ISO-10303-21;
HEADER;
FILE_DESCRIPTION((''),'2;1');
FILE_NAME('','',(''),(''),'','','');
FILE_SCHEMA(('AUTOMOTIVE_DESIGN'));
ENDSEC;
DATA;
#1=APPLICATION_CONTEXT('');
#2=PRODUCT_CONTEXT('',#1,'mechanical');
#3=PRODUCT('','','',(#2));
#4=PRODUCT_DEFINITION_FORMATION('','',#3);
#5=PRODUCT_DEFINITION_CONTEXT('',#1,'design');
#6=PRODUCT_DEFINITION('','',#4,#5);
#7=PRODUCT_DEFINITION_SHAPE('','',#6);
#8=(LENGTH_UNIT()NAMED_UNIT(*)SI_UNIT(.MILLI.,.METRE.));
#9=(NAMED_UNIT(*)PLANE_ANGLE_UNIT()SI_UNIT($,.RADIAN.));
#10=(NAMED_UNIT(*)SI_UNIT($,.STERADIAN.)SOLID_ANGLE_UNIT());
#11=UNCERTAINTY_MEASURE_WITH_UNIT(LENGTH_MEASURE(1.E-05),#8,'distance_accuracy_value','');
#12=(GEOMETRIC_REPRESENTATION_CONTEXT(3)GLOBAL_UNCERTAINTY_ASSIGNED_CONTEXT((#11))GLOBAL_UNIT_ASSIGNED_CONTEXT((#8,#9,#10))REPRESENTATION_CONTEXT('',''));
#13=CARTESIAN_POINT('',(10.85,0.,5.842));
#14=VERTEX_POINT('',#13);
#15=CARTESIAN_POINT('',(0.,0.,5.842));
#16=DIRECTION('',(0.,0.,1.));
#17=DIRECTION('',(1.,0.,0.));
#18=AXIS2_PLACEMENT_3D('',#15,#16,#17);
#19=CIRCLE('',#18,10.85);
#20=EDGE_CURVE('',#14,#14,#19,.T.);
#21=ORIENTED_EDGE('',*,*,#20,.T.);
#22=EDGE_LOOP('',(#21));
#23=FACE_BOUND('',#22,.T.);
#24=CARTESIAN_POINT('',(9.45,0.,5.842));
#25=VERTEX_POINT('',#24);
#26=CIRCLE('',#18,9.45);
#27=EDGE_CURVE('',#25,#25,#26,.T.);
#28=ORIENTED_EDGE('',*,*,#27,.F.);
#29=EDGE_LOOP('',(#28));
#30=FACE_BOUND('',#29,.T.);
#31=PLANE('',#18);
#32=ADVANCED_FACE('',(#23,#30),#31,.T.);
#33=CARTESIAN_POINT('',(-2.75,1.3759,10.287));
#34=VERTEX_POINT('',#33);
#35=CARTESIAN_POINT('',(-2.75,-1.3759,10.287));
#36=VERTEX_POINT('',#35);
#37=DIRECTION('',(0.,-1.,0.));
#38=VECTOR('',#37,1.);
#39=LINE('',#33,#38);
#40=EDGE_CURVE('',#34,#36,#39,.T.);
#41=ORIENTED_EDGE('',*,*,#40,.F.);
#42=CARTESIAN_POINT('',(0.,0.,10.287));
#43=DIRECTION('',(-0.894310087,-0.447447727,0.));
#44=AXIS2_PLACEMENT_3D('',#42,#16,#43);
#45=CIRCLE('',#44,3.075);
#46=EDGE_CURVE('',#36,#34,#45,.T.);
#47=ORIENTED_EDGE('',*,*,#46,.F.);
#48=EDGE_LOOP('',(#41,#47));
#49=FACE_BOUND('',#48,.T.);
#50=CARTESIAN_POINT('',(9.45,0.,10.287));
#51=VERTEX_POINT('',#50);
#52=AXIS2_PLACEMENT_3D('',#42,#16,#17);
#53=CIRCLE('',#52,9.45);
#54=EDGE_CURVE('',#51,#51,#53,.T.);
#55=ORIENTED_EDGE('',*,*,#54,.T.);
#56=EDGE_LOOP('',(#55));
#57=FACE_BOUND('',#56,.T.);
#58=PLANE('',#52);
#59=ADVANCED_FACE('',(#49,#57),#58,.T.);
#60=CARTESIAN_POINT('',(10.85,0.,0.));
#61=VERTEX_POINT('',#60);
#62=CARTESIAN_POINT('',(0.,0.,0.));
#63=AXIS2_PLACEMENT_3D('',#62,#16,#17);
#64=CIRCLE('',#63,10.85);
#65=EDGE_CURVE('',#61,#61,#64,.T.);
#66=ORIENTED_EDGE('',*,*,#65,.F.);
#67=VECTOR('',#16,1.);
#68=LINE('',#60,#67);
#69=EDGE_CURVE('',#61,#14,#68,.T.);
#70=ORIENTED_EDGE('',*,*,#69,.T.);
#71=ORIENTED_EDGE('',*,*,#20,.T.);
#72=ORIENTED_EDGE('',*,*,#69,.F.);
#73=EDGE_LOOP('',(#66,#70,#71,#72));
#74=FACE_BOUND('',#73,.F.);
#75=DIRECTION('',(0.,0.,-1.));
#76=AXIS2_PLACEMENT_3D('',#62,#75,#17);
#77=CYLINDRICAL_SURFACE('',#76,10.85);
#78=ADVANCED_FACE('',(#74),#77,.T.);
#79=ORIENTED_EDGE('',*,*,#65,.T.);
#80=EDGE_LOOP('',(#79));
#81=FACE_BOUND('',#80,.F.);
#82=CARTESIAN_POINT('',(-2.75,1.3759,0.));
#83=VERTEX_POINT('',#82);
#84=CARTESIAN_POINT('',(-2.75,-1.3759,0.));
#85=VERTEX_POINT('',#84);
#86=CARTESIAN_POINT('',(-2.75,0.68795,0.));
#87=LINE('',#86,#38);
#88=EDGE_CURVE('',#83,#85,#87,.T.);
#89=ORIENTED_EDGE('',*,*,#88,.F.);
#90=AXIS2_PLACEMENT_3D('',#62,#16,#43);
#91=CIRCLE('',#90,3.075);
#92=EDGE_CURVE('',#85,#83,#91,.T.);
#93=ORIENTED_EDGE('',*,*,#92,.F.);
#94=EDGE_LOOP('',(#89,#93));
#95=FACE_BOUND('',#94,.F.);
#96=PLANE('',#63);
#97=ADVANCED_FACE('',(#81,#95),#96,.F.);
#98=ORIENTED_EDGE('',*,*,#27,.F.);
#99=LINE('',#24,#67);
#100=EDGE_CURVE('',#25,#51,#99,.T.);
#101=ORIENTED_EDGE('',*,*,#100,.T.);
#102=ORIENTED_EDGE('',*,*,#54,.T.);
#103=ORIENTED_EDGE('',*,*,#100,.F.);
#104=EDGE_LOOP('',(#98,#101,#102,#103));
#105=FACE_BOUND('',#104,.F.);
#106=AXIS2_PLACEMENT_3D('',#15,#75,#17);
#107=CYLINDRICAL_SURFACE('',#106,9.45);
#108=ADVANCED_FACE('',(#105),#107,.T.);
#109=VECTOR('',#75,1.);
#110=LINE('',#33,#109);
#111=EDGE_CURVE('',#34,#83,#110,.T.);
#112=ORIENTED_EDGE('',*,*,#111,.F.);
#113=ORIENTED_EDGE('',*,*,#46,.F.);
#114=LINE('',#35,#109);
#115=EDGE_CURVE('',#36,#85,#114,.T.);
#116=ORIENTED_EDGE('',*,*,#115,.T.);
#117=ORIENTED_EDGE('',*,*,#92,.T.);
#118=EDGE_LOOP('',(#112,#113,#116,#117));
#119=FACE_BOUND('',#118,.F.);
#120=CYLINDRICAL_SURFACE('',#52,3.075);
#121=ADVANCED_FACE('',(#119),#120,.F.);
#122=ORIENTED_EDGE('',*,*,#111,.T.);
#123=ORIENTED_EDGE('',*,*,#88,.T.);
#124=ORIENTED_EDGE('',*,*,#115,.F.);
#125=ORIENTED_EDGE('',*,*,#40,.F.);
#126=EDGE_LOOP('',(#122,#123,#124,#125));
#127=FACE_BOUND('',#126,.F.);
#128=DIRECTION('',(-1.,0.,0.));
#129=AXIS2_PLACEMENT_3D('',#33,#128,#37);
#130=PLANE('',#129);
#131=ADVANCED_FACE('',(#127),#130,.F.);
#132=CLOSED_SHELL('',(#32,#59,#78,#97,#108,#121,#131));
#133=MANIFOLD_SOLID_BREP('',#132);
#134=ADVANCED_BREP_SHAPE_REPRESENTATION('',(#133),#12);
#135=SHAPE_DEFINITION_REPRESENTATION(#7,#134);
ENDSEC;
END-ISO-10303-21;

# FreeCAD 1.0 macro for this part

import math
import FreeCAD as App
import Part
import Sketcher
Q = App.Units.Quantity

doc = App.newDocument("Part")
body = doc.addObject("PartDesign::Body", "Body")

# Sketch on XY plane
sketch1 = doc.addObject("Sketcher::SketchObject", "Sketch")
body.addObject(sketch1)
sketch1.AttachmentSupport = (doc.XY_Plane, [""])
sketch1.MapMode = "FlatFace"
sketch1.addGeometry(Part.Circle(App.Vector(0, 0, 0), App.Vector(0, 0, 1), 11), False)
sketch1.addConstraint(Sketcher.Constraint("Coincident", 0, 3, -1, 1))
sketch1.addConstraint(Sketcher.Constraint("Diameter", 0, Q("21.7 mm")))
pad1 = doc.addObject("PartDesign::Pad", "Pad")
body.addObject(pad1)
pad1.Profile = sketch1
pad1.Length = Q("0.23 in")

# Sketch on XY plane
sketch2 = doc.addObject("Sketcher::SketchObject", "Sketch001")
body.addObject(sketch2)
sketch2.AttachmentSupport = (doc.XY_Plane, [""])
sketch2.MapMode = "FlatFace"
sketch2.AttachmentOffset = App.Placement(App.Vector(0, 0, 0.23 * 25.4), App.Rotation())
sketch2.addGeometry(Part.Circle(App.Vector(0, 0, 0), App.Vector(0, 0, 1), 9), False)
sketch2.addConstraint(Sketcher.Constraint("Coincident", 0, 3, -1, 1))
sketch2.addConstraint(Sketcher.Constraint("Diameter", 0, Q("0.7441 in")))
pad2 = doc.addObject("PartDesign::Pad", "Pad001")
body.addObject(pad2)
pad2.Profile = sketch2
pad2.Length = Q("0.175 in")

# Sketch on XY plane
sketch3 = doc.addObject("Sketcher::SketchObject", "Sketch002")
body.addObject(sketch3)
sketch3.AttachmentSupport = (doc.XY_Plane, [""])
sketch3.MapMode = "FlatFace"
sketch3.AttachmentOffset = App.Placement(App.Vector(0, 0, 0.405 * 25.4), App.Rotation())
sketch3.addGeometry(Part.ArcOfCircle(Part.Circle(App.Vector(0, 0, 0), App.Vector(0, 0, 1), 3.1), math.radians(-153), math.radians(153)), False)
sketch3.addGeometry(Part.LineSegment(App.Vector(-2.8, -1.4, 0), App.Vector(-2.8, 1.4, 0)), False)
sketch3.addConstraint(Sketcher.Constraint("Coincident", 0, 1, 1, 1))
sketch3.addConstraint(Sketcher.Constraint("Coincident", 1, 2, 0, 2))
sketch3.addConstraint(Sketcher.Constraint("Vertical", 1))
sketch3.addConstraint(Sketcher.Constraint("Coincident", 0, 3, -1, 1))
sketch3.addConstraint(Sketcher.Constraint("Radius", 0, Q("3.075 mm")))
sketch3.addConstraint(Sketcher.Constraint("DistanceX", 0, 1, -1, 1, Q("2.75 mm")))
pocket1 = doc.addObject("PartDesign::Pocket", "Pocket")
body.addObject(pocket1)
pocket1.Profile = sketch3
pocket1.Type = "ThroughAll"

doc.recompute()
